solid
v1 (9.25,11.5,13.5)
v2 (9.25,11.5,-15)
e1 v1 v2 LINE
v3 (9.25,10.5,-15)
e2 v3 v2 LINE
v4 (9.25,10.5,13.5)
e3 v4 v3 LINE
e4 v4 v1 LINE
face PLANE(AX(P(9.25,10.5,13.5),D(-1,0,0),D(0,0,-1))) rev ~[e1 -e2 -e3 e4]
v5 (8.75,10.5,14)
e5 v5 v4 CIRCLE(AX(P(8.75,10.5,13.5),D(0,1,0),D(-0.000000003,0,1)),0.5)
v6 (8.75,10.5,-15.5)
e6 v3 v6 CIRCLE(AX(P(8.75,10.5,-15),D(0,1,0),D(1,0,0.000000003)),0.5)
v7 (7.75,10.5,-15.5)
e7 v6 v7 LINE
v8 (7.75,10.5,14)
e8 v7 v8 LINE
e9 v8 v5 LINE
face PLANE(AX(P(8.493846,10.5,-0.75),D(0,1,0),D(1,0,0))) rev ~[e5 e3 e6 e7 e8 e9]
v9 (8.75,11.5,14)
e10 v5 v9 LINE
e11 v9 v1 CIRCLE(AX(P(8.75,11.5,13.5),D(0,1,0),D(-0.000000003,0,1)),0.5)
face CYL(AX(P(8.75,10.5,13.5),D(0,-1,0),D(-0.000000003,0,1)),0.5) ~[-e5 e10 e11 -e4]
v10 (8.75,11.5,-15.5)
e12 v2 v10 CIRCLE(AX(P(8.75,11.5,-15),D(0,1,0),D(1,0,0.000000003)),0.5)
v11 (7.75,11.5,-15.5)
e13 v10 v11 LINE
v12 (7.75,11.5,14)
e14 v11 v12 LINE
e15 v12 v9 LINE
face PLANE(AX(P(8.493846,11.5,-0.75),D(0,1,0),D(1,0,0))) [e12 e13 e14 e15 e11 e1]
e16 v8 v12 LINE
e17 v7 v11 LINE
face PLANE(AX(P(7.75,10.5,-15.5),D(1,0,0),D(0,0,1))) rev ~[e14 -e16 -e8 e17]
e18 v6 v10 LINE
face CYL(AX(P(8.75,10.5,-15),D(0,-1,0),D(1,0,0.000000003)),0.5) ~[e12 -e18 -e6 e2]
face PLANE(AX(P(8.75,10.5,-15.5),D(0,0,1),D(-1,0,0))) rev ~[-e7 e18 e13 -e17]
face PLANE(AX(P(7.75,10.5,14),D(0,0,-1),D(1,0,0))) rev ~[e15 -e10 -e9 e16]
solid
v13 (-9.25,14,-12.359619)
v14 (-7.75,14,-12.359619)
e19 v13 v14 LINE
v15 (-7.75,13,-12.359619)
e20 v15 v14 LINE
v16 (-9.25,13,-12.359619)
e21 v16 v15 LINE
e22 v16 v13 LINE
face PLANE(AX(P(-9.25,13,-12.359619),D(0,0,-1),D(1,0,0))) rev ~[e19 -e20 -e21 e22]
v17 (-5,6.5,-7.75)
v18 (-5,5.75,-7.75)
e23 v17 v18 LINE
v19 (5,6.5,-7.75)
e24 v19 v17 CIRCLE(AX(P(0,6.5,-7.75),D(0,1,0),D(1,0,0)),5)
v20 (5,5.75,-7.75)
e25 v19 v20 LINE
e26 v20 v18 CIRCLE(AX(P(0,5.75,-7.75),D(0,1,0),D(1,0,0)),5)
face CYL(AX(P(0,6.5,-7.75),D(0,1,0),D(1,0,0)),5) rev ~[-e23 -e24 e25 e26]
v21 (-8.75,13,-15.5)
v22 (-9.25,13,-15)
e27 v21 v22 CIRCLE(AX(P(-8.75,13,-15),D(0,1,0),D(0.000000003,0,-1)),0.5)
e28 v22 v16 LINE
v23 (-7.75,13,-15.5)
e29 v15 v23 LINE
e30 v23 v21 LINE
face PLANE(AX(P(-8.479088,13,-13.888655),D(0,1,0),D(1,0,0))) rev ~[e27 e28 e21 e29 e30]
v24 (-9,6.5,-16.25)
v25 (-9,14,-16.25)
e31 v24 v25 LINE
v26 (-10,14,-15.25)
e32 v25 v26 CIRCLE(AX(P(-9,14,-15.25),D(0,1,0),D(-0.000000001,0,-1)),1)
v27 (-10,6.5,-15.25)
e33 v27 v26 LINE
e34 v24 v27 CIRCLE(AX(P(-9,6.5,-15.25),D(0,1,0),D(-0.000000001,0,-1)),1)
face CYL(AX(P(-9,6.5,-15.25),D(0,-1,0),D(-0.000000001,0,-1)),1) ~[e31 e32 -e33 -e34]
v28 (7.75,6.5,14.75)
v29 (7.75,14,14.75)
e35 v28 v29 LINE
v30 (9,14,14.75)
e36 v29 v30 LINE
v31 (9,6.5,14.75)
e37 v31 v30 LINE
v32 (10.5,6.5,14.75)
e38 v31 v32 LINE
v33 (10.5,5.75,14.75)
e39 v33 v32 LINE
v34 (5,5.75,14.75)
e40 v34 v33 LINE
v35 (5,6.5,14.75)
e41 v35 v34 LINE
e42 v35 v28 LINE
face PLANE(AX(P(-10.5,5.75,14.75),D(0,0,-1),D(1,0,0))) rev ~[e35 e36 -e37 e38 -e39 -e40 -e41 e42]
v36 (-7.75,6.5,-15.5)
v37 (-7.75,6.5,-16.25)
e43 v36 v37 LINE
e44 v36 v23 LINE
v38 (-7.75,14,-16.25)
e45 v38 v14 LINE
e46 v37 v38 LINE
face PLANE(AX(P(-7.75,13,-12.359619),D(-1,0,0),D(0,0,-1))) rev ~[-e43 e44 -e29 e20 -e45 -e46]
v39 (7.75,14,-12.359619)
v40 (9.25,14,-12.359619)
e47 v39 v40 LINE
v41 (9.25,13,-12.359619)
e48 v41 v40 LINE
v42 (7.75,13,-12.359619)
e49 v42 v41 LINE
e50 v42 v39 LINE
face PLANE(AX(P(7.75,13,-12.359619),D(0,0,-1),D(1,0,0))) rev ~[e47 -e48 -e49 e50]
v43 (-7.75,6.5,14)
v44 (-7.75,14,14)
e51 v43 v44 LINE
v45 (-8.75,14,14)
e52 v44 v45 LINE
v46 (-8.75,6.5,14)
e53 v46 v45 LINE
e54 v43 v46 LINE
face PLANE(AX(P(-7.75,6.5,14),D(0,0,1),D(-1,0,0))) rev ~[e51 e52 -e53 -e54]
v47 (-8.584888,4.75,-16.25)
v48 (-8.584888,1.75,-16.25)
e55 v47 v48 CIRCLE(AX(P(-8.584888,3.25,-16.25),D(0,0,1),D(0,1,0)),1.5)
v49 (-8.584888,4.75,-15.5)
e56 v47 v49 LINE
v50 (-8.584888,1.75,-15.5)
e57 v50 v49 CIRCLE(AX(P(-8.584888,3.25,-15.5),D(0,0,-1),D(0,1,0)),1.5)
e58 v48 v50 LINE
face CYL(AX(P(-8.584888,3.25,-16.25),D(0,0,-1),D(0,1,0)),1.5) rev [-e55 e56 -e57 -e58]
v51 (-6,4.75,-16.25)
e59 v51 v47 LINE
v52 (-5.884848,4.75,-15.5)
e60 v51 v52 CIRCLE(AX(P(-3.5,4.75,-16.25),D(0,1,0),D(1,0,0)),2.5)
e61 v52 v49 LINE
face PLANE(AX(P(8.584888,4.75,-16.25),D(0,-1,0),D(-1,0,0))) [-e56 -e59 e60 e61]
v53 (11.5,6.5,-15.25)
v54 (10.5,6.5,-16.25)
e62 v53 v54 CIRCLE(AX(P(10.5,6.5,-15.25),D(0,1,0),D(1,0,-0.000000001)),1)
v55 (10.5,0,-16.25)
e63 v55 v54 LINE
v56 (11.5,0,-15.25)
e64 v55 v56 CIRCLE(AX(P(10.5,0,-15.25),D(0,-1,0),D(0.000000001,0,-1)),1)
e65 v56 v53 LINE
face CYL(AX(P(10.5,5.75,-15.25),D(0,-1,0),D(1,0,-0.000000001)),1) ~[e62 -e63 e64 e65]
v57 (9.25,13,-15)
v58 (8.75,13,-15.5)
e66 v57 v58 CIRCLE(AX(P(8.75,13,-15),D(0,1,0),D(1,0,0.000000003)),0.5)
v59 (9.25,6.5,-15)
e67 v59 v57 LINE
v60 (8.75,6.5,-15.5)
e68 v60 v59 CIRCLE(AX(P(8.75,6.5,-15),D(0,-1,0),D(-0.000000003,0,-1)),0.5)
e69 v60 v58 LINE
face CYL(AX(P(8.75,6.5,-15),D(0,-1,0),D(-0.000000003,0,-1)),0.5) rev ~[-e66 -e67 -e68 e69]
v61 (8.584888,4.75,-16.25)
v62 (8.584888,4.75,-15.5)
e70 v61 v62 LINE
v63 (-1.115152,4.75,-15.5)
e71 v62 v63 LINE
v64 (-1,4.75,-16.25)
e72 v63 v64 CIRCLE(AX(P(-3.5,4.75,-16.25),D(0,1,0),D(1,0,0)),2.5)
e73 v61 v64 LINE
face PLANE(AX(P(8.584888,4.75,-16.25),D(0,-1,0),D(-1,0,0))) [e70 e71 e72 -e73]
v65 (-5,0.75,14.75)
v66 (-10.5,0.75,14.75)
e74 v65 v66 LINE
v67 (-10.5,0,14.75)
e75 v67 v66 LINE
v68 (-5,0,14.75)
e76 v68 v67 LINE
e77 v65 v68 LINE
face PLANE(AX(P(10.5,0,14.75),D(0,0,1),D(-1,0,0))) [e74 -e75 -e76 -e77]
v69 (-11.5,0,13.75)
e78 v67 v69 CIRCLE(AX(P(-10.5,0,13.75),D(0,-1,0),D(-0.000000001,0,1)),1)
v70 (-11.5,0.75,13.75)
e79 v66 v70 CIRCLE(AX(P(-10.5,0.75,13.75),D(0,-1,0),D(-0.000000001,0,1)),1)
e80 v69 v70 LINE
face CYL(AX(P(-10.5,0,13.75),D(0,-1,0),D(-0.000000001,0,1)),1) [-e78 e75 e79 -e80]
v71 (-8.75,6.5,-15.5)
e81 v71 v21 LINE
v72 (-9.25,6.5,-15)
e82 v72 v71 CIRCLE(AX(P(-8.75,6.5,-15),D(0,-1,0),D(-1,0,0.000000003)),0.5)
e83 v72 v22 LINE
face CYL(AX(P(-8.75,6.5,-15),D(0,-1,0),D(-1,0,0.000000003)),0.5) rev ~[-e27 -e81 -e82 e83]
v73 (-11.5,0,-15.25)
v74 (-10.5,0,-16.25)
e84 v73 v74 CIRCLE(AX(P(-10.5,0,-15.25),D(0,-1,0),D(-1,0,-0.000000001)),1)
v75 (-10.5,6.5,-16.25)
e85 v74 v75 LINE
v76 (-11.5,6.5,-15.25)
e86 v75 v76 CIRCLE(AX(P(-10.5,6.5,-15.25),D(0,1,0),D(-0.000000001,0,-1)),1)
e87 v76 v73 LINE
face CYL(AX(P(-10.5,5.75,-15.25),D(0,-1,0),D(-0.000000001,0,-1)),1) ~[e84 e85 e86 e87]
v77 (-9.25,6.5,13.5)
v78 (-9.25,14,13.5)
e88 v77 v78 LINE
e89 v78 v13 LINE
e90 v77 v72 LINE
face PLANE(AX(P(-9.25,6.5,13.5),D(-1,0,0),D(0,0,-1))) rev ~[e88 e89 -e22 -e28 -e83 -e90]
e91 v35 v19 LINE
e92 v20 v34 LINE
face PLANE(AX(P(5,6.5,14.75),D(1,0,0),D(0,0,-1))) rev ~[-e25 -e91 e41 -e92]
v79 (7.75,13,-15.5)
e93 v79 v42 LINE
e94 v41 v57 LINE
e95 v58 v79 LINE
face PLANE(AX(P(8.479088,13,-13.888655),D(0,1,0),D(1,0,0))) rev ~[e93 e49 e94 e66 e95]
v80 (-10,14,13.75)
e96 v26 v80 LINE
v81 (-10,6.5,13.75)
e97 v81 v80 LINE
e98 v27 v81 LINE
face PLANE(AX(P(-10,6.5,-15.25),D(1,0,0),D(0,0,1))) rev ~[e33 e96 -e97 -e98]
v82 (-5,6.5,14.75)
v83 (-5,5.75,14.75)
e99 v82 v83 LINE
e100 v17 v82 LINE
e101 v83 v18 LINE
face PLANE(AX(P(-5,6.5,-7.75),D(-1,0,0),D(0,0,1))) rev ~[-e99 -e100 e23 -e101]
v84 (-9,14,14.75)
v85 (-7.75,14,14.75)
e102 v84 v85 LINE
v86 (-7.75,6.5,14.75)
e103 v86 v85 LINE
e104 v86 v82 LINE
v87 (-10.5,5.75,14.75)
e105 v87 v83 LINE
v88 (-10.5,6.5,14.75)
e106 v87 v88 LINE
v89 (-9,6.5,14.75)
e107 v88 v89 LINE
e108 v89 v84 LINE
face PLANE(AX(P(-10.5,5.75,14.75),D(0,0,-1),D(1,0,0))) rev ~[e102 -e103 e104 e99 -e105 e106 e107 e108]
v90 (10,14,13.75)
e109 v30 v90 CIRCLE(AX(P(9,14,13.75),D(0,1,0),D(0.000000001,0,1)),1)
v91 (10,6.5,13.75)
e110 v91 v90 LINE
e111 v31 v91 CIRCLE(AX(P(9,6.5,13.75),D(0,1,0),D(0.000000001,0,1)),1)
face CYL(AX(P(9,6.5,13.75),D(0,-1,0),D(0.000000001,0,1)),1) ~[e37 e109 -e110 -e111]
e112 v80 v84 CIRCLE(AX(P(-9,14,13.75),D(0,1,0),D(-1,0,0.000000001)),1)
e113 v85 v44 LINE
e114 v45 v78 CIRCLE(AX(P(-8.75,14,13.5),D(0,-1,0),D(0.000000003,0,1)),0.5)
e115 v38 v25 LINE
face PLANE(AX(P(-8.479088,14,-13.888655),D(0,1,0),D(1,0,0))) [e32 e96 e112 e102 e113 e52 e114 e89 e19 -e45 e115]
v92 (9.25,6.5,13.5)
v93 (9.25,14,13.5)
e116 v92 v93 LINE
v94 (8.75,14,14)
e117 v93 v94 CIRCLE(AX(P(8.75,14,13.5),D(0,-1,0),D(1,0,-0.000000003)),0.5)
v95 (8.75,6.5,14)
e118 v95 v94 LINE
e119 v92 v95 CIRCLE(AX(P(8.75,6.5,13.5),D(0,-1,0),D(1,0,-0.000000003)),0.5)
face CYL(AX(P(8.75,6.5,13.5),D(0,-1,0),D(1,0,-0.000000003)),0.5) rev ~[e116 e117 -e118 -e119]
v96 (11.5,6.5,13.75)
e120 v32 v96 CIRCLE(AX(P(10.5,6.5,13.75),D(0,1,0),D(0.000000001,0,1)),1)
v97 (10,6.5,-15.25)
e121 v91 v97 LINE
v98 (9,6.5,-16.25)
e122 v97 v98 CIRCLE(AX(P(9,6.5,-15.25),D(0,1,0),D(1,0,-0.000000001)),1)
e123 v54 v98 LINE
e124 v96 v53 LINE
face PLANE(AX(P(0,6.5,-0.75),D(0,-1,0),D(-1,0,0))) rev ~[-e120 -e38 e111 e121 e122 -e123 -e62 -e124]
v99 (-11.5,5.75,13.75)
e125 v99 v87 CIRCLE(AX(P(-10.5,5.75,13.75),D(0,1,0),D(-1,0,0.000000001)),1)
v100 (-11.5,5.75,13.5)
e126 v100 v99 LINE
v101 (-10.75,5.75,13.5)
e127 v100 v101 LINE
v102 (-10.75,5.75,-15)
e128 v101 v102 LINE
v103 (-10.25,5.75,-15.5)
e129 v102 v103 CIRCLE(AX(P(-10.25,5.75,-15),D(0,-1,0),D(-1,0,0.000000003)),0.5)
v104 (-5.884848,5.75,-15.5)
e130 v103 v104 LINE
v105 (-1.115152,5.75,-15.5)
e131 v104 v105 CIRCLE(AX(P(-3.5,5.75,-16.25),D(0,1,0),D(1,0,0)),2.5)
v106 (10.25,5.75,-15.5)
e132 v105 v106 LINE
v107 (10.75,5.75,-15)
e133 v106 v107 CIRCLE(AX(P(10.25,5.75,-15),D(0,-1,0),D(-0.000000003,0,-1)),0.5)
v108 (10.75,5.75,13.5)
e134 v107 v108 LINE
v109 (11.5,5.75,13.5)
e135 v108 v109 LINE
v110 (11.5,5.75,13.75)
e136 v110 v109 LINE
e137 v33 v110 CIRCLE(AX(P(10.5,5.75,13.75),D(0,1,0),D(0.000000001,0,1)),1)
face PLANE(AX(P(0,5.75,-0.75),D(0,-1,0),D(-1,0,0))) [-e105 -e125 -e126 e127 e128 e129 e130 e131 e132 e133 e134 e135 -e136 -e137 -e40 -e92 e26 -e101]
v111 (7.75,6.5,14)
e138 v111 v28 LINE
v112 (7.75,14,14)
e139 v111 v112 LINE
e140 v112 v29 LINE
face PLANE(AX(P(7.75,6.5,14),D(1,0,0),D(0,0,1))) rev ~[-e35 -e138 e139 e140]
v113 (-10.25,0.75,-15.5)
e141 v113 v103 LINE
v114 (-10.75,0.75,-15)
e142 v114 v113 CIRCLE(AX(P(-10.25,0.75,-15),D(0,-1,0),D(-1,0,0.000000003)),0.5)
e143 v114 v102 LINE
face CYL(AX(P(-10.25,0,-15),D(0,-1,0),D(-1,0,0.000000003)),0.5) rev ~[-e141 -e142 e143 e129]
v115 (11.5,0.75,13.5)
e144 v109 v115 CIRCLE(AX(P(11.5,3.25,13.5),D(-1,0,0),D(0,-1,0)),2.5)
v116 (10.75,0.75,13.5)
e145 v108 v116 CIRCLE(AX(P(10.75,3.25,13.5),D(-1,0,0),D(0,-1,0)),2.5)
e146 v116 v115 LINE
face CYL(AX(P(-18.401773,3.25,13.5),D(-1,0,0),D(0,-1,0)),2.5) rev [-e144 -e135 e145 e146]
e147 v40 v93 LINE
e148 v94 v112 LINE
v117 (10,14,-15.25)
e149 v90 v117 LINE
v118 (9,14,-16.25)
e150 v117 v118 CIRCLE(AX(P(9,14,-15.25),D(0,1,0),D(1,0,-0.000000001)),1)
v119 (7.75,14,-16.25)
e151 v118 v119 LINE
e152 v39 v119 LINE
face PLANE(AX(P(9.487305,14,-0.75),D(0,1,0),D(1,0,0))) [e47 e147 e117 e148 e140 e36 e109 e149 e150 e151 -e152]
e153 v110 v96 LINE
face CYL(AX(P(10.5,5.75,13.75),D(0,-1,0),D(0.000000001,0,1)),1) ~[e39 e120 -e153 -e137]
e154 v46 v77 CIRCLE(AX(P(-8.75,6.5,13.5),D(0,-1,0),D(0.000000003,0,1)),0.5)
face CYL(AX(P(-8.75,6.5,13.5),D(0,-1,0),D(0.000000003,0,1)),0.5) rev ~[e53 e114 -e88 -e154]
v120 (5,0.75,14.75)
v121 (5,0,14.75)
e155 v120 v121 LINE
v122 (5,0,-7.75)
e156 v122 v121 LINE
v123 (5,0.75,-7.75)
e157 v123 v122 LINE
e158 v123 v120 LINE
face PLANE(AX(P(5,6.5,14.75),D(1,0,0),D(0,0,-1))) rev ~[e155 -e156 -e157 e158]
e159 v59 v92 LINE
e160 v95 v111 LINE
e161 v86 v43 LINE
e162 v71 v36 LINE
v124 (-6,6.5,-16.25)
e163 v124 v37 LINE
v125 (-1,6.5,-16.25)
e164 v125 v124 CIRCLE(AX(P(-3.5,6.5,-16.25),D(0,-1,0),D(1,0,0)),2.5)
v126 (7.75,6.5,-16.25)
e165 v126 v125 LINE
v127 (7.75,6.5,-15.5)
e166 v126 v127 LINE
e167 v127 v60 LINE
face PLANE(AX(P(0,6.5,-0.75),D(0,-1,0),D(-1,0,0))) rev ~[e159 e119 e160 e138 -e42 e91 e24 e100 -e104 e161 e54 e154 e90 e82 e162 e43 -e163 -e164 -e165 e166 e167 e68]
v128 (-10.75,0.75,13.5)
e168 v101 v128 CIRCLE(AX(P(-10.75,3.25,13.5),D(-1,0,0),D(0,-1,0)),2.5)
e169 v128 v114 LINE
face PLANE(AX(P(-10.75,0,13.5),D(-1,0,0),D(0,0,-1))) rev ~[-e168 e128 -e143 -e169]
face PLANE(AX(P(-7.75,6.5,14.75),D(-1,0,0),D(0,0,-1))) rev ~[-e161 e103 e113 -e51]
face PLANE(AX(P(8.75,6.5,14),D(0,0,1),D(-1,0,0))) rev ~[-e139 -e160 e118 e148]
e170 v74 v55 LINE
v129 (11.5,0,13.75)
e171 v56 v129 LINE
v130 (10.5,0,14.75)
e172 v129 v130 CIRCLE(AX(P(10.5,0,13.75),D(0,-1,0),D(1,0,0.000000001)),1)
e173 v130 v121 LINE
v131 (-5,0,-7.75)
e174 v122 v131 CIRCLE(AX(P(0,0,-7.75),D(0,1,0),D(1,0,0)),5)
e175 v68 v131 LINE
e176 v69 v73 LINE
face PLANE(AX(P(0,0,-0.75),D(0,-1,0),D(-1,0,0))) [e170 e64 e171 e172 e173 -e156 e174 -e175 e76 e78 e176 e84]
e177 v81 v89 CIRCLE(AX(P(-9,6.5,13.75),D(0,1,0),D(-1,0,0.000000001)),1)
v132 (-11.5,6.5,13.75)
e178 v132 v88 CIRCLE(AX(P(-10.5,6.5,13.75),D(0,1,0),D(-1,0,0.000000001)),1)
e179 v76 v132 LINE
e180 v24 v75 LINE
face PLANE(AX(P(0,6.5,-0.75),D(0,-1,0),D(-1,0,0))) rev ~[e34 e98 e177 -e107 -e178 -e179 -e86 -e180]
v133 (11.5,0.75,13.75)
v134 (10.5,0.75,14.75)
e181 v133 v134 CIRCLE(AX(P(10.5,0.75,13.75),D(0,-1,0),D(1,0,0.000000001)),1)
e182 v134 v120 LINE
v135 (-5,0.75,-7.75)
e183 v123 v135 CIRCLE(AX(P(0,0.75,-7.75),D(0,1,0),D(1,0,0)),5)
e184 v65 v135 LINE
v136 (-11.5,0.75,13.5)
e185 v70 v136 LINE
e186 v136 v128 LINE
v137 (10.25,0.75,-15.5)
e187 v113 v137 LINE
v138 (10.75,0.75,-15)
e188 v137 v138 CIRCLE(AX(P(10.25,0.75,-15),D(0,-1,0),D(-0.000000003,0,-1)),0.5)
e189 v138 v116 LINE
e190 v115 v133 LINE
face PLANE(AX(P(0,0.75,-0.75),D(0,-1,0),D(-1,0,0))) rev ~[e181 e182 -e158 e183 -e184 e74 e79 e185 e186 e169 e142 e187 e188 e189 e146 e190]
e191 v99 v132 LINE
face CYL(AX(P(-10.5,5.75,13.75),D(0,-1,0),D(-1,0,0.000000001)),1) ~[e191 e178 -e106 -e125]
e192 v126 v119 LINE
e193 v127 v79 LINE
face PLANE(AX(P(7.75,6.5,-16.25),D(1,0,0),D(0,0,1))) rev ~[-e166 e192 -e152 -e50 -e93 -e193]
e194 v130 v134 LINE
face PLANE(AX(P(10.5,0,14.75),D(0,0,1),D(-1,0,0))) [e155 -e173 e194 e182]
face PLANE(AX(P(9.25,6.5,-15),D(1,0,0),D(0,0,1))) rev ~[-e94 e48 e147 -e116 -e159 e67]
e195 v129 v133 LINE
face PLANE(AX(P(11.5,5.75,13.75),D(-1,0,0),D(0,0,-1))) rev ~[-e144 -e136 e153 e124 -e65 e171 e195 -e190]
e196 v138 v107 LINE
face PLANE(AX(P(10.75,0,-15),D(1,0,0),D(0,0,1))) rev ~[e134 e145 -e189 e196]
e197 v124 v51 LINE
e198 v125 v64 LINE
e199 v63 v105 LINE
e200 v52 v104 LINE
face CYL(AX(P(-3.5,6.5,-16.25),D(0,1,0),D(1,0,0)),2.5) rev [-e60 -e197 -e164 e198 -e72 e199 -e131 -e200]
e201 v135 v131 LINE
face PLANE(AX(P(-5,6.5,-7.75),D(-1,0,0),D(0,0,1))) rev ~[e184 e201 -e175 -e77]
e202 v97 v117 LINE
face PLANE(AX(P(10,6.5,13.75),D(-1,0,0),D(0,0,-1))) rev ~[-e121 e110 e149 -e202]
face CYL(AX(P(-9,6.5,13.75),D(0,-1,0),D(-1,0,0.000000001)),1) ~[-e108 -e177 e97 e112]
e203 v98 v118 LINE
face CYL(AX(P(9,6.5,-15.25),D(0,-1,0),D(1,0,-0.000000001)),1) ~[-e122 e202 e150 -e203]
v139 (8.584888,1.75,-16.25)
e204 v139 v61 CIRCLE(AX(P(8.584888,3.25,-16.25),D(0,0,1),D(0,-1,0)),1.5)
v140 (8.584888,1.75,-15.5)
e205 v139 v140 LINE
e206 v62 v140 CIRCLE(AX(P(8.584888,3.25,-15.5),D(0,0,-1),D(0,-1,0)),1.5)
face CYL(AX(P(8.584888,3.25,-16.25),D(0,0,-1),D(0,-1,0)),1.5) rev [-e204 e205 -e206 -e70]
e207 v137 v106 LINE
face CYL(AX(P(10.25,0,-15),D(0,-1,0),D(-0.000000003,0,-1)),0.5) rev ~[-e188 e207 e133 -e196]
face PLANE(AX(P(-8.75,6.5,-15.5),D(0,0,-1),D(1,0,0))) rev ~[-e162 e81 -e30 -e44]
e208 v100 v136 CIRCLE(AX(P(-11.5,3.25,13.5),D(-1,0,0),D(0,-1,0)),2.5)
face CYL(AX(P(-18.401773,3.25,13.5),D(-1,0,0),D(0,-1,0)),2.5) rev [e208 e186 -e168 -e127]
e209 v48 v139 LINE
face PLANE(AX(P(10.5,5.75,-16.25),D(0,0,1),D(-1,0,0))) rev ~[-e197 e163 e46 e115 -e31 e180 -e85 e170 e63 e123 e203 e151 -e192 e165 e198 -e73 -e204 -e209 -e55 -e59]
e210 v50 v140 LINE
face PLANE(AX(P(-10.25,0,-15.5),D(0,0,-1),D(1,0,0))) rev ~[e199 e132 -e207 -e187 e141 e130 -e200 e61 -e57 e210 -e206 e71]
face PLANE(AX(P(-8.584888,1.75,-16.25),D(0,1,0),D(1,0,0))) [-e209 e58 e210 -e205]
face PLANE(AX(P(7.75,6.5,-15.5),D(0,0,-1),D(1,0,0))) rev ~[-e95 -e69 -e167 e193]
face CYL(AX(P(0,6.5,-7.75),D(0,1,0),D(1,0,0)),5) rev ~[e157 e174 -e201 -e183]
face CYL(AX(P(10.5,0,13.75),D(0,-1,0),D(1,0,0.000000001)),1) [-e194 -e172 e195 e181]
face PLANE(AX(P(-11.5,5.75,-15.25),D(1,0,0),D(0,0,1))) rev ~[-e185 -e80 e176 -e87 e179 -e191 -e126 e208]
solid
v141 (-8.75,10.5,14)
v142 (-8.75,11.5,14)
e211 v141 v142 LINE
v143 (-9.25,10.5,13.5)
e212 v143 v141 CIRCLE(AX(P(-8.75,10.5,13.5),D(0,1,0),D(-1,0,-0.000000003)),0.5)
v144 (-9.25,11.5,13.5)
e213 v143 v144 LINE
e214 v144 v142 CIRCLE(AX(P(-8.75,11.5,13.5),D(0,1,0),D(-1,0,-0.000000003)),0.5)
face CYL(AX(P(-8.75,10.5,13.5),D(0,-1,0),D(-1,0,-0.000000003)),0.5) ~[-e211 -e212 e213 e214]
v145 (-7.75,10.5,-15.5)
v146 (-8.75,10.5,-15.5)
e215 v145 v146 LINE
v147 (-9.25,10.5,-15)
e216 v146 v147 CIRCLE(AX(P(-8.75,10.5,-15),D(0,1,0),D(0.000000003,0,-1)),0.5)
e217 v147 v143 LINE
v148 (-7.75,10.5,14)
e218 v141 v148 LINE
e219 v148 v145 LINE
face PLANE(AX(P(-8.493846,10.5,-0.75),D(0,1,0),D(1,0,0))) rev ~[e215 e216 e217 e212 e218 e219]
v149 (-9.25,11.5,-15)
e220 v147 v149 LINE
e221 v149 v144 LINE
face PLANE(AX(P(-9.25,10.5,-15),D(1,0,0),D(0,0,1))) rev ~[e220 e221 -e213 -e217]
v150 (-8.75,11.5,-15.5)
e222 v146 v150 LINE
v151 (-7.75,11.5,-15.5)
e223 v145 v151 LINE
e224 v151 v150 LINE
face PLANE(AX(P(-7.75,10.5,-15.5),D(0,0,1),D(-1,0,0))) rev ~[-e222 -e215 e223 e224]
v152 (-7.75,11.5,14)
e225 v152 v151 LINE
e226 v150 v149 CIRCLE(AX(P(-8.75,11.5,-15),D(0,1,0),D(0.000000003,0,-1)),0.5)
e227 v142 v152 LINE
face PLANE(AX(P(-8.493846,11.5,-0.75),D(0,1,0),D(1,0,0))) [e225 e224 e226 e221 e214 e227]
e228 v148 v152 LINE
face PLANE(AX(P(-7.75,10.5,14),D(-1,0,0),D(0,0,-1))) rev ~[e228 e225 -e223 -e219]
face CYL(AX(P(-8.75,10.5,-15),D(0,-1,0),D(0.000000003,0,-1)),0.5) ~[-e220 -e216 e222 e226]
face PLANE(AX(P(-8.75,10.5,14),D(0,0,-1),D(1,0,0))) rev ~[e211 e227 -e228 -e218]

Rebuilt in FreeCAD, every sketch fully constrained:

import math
import FreeCAD as App
import Part
import Sketcher

V = App.Vector

doc = App.newDocument("Part")
body = doc.addObject("PartDesign::Body", "Body")

# Sketch on XZ plane
sketch1 = body.newObject("Sketcher::SketchObject", "Sketch")
sketch1.AttachmentSupport = (doc.getObject("XZ_Plane"), [""])
sketch1.MapMode = "FlatFace"
sketch1.addGeometry([
    Part.LineSegment(V(10.5, -16.2, 0), V(-10.5, -16.2, 0)),  # 0
    Part.ArcOfCircle(Part.Circle(V(-10.5, -15.2, 0), V(0, 0, 1), 1), math.radians(-180), math.radians(-90)),  # 1
    Part.LineSegment(V(-11.5, -15.2, 0), V(-11.5, 13.8, 0)),  # 2
    Part.ArcOfCircle(Part.Circle(V(-10.5, 13.7, 0), V(0, 0, 1), 1), math.radians(90), math.radians(180)),  # 3
    Part.LineSegment(V(-10.5, 14.8, 0), V(10.5, 14.8, 0)),  # 4
    Part.ArcOfCircle(Part.Circle(V(10.5, 13.7, 0), V(0, 0, 1), 1), math.radians(0), math.radians(90)),  # 5
    Part.LineSegment(V(11.5, 13.8, 0), V(11.5, -15.2, 0)),  # 6
    Part.ArcOfCircle(Part.Circle(V(10.5, -15.2, 0), V(0, 0, 1), 1), math.radians(-90), math.radians(0)),  # 7
], False)
sketch1.addConstraint([
    Sketcher.Constraint("Tangent", 0, 2, 1, 2),
    Sketcher.Constraint("Tangent", 1, 1, 2, 1),
    Sketcher.Constraint("Tangent", 2, 2, 3, 2),
    Sketcher.Constraint("Tangent", 3, 1, 4, 1),
    Sketcher.Constraint("Tangent", 4, 2, 5, 2),
    Sketcher.Constraint("Tangent", 5, 1, 6, 1),
    Sketcher.Constraint("Tangent", 6, 2, 7, 2),
    Sketcher.Constraint("Tangent", 7, 1, 0, 1),
    Sketcher.Constraint("Horizontal", 0),
    Sketcher.Constraint("Vertical", 2),
    Sketcher.Constraint("Horizontal", 4),
    Sketcher.Constraint("Vertical", 6),
    Sketcher.Constraint("Equal", 1, 3),
    Sketcher.Constraint("Equal", 3, 5),
    Sketcher.Constraint("Equal", 5, 7),
    Sketcher.Constraint("Radius", 1, 1.0),
    Sketcher.Constraint("DistanceX", 0, 2, 0, 1, 21.0),
    Sketcher.Constraint("DistanceY", 2, 1, 2, 2, 29.0),
    Sketcher.Constraint("DistanceX", 1, 3, -1, 1, 10.5),
    Sketcher.Constraint("DistanceY", 1, 3, -1, 1, 15.25),
])
pad1 = body.newObject("PartDesign::Pad", "Pad")
pad1.Profile = sketch1
pad1.Length = 0.75
pad1.Reversed = True

# Sketch on XZ plane
sketch2 = body.newObject("Sketcher::SketchObject", "Sketch001")
sketch2.AttachmentSupport = (doc.getObject("XZ_Plane"), [""])
sketch2.MapMode = "FlatFace"
sketch2.addGeometry([
    Part.LineSegment(V(-11.5, 13.5, 0), V(-10.75, 13.5, 0)),  # 0
    Part.LineSegment(V(-10.75, 13.5, 0), V(-10.75, -15, 0)),  # 1
    Part.ArcOfCircle(Part.Circle(V(-10.25, -15, 0), V(0, 0, 1), 0.5), math.radians(180), math.radians(270)),  # 2
    Part.LineSegment(V(-10.25, -15.5, 0), V(10.25, -15.5, 0)),  # 3
    Part.ArcOfCircle(Part.Circle(V(10.25, -15, 0), V(0, 0, 1), 0.5), math.radians(-90), math.radians(0)),  # 4
    Part.LineSegment(V(10.75, -15, 0), V(10.75, 13.5, 0)),  # 5
    Part.LineSegment(V(10.75, 13.5, 0), V(11.5, 13.5, 0)),  # 6
    Part.LineSegment(V(11.5, 13.5, 0), V(11.5, -15.25, 0)),  # 7
    Part.ArcOfCircle(Part.Circle(V(10.5, -15.25, 0), V(0, 0, 1), 1), math.radians(-90), math.radians(0)),  # 8
    Part.LineSegment(V(10.5, -16.25, 0), V(-10.5, -16.25, 0)),  # 9
    Part.ArcOfCircle(Part.Circle(V(-10.5, -15.25, 0), V(0, 0, 1), 1), math.radians(-180), math.radians(-90)),  # 10
    Part.LineSegment(V(-11.5, -15.25, 0), V(-11.5, 13.5, 0)),  # 11
], False)
sketch2.addConstraint([
    Sketcher.Constraint("Coincident", 0, 2, 1, 1),
    Sketcher.Constraint("Tangent", 1, 2, 2, 1),
    Sketcher.Constraint("Tangent", 2, 2, 3, 1),
    Sketcher.Constraint("Tangent", 3, 2, 4, 1),
    Sketcher.Constraint("Tangent", 4, 2, 5, 1),
    Sketcher.Constraint("Coincident", 5, 2, 6, 1),
    Sketcher.Constraint("Coincident", 6, 2, 7, 1),
    Sketcher.Constraint("Tangent", 7, 2, 8, 2),
    Sketcher.Constraint("Tangent", 8, 1, 9, 1),
    Sketcher.Constraint("Tangent", 9, 2, 10, 2),
    Sketcher.Constraint("Tangent", 10, 1, 11, 1),
    Sketcher.Constraint("Coincident", 11, 2, 0, 1),
    Sketcher.Constraint("Horizontal", 0),
    Sketcher.Constraint("Vertical", 1),
    Sketcher.Constraint("Horizontal", 3),
    Sketcher.Constraint("Vertical", 5),
    Sketcher.Constraint("Horizontal", 6),
    Sketcher.Constraint("Vertical", 7),
    Sketcher.Constraint("Horizontal", 9),
    Sketcher.Constraint("Vertical", 11),
    Sketcher.Constraint("Equal", 2, 4),
    Sketcher.Constraint("Equal", 8, 10),
    Sketcher.Constraint("Symmetric", 0, 2, 5, 2, -2),
    Sketcher.Constraint("Equal", 0, 6),
    Sketcher.Constraint("Radius", 8, 1.0),
    Sketcher.Constraint("Radius", 2, 0.5),
    Sketcher.Constraint("DistanceX", 9, 2, 9, 1, 21.0),
    Sketcher.Constraint("DistanceX", 3, 1, 3, 2, 20.5),
    Sketcher.Constraint("DistanceY", 1, 2, 1, 1, 28.5),
    Sketcher.Constraint("DistanceY", 2, 3, -1, 1, 15.0),
    Sketcher.Constraint("DistanceY", 7, 2, 7, 1, 28.75),
])
pad2 = body.newObject("PartDesign::Pad", "Pad001")
pad2.Profile = sketch2
pad2.Length = 5.75
pad2.Reversed = True

# Sketch on XZ plane
sketch3 = body.newObject("Sketcher::SketchObject", "Sketch002")
sketch3.AttachmentSupport = (doc.getObject("XZ_Plane"), [""])
sketch3.MapMode = "FlatFace"
sketch3.AttachmentOffset = App.Placement(V(0, 0, -5.75), App.Rotation())
sketch3.addGeometry([
    Part.LineSegment(V(11.5, 13.8, 0), V(11.5, -15.2, 0)),  # 0
    Part.ArcOfCircle(Part.Circle(V(10.5, -15.2, 0), V(0, 0, 1), 1), math.radians(-90), math.radians(0)),  # 1
    Part.LineSegment(V(10.5, -16.2, 0), V(-10.5, -16.2, 0)),  # 2
    Part.ArcOfCircle(Part.Circle(V(-10.5, -15.2, 0), V(0, 0, 1), 1), math.radians(-180), math.radians(-90)),  # 3
    Part.LineSegment(V(-11.5, -15.2, 0), V(-11.5, 13.8, 0)),  # 4
    Part.ArcOfCircle(Part.Circle(V(-10.5, 13.7, 0), V(0, 0, 1), 1), math.radians(90), math.radians(180)),  # 5
    Part.LineSegment(V(-10.5, 14.8, 0), V(10.5, 14.8, 0)),  # 6
    Part.ArcOfCircle(Part.Circle(V(10.5, 13.7, 0), V(0, 0, 1), 1), math.radians(0), math.radians(90)),  # 7
], False)
sketch3.addConstraint([
    Sketcher.Constraint("Tangent", 0, 2, 1, 2),
    Sketcher.Constraint("Tangent", 1, 1, 2, 1),
    Sketcher.Constraint("Tangent", 2, 2, 3, 2),
    Sketcher.Constraint("Tangent", 3, 1, 4, 1),
    Sketcher.Constraint("Tangent", 4, 2, 5, 2),
    Sketcher.Constraint("Tangent", 5, 1, 6, 1),
    Sketcher.Constraint("Tangent", 6, 2, 7, 2),
    Sketcher.Constraint("Tangent", 7, 1, 0, 1),
    Sketcher.Constraint("Vertical", 0),
    Sketcher.Constraint("Horizontal", 2),
    Sketcher.Constraint("Vertical", 4),
    Sketcher.Constraint("Horizontal", 6),
    Sketcher.Constraint("Equal", 1, 3),
    Sketcher.Constraint("Equal", 3, 5),
    Sketcher.Constraint("Equal", 5, 7),
    Sketcher.Constraint("Radius", 1, 1.0),
    Sketcher.Constraint("DistanceX", 2, 2, 2, 1, 21.0),
    Sketcher.Constraint("DistanceY", 0, 2, 0, 1, 29.0),
    Sketcher.Constraint("DistanceX", -1, 1, 1, 3, 10.5),
    Sketcher.Constraint("DistanceY", 1, 3, -1, 1, 15.25),
])
pad3 = body.newObject("PartDesign::Pad", "Pad002")
pad3.Profile = sketch3
pad3.Length = 0.75
pad3.Reversed = True

# Sketch on YZ plane
sketch4 = body.newObject("Sketcher::SketchObject", "Sketch003")
sketch4.AttachmentSupport = (doc.getObject("YZ_Plane"), [""])
sketch4.MapMode = "FlatFace"
sketch4.AttachmentOffset = App.Placement(V(0, 0, 11.5), App.Rotation())
sketch4.addGeometry([
    Part.ArcOfCircle(Part.Circle(V(3.2, 13.5, 0), V(0, 0, 1), 2.5), math.radians(180), math.radians(360)),
    Part.LineSegment(V(5.8, 13.5, 0), V(5.8, 225.3, 0)),
    Part.LineSegment(V(5.8, 225.3, 0), V(0.8, 225.3, 0)),
    Part.LineSegment(V(0.8, 225.3, 0), V(0.8, 13.5, 0)),
], False)
sketch4.addConstraint([
    Sketcher.Constraint("Tangent", 0, 2, 1, 1),
    Sketcher.Constraint("Coincident", 1, 2, 2, 1),
    Sketcher.Constraint("Coincident", 2, 2, 3, 1),
    Sketcher.Constraint("Tangent", 3, 2, 0, 1),
    Sketcher.Constraint("Vertical", 1),
    Sketcher.Constraint("Horizontal", 2),
    Sketcher.Constraint("Vertical", 3),
    Sketcher.Constraint("Radius", 0, 2.5),
    Sketcher.Constraint("DistanceY", -1, 1, 0, 3, 13.5),
    Sketcher.Constraint("DistanceX", -1, 1, 0, 3, 3.25),
    Sketcher.Constraint("DistanceY", 1, 1, 1, 2, 211.803465),
])
pocket1 = body.newObject("PartDesign::Pocket", "Pocket")
pocket1.Profile = sketch4
pocket1.Type = "ThroughAll"
pocket1.Midplane = True

# Sketch on XZ plane
sketch5 = body.newObject("Sketcher::SketchObject", "Sketch004")
sketch5.AttachmentSupport = (doc.getObject("XZ_Plane"), [""])
sketch5.MapMode = "FlatFace"
sketch5.AttachmentOffset = App.Placement(V(0, 0, -6.5), App.Rotation())
sketch5.addGeometry([
    Part.LineSegment(V(-7.75, 14.75, 0), V(-7.75, 14, 0)),  # 0
    Part.LineSegment(V(-7.75, 14, 0), V(-8.75, 14, 0)),  # 1
    Part.ArcOfCircle(Part.Circle(V(-8.75, 13.5, 0), V(0, 0, 1), 0.5), math.radians(90), math.radians(180)),  # 2
    Part.LineSegment(V(-9.25, 13.5, 0), V(-9.25, -15, 0)),  # 3
    Part.ArcOfCircle(Part.Circle(V(-8.75, -15, 0), V(0, 0, 1), 0.5), math.radians(180), math.radians(270)),  # 4
    Part.LineSegment(V(-8.75, -15.5, 0), V(-7.75, -15.5, 0)),  # 5
    Part.LineSegment(V(-7.75, -15.5, 0), V(-7.75, -16.25, 0)),  # 6
    Part.LineSegment(V(-7.75, -16.25, 0), V(-9, -16.25, 0)),  # 7
    Part.ArcOfCircle(Part.Circle(V(-9, -15.25, 0), V(0, 0, 1), 1), math.radians(-180), math.radians(-90)),  # 8
    Part.LineSegment(V(-10, -15.25, 0), V(-10, 13.75, 0)),  # 9
    Part.ArcOfCircle(Part.Circle(V(-9, 13.75, 0), V(0, 0, 1), 1), math.radians(90), math.radians(180)),  # 10
    Part.LineSegment(V(-9, 14.75, 0), V(-7.75, 14.75, 0)),  # 11
    Part.LineSegment(V(8.75, 14, 0), V(7.75, 14, 0)),  # 12
    Part.LineSegment(V(7.75, 14, 0), V(7.75, 14.75, 0)),  # 13
    Part.LineSegment(V(7.75, 14.75, 0), V(9, 14.75, 0)),  # 14
    Part.ArcOfCircle(Part.Circle(V(9, 13.75, 0), V(0, 0, 1), 1), math.radians(0), math.radians(90)),  # 15
    Part.LineSegment(V(10, 13.75, 0), V(10, -15.25, 0)),  # 16
    Part.ArcOfCircle(Part.Circle(V(9, -15.25, 0), V(0, 0, 1), 1), math.radians(-90), math.radians(0)),  # 17
    Part.LineSegment(V(9, -16.25, 0), V(7.75, -16.25, 0)),  # 18
    Part.LineSegment(V(7.75, -16.25, 0), V(7.75, -15.5, 0)),  # 19
    Part.LineSegment(V(7.75, -15.5, 0), V(8.75, -15.5, 0)),  # 20
    Part.ArcOfCircle(Part.Circle(V(8.75, -15, 0), V(0, 0, 1), 0.5), math.radians(-90), math.radians(0)),  # 21
    Part.LineSegment(V(9.25, -15, 0), V(9.25, 13.5, 0)),  # 22
    Part.ArcOfCircle(Part.Circle(V(8.75, 13.5, 0), V(0, 0, 1), 0.5), math.radians(0), math.radians(90)),  # 23
], False)
sketch5.addConstraint([
    Sketcher.Constraint("Coincident", 0, 2, 1, 1),
    Sketcher.Constraint("Tangent", 1, 2, 2, 1),
    Sketcher.Constraint("Tangent", 2, 2, 3, 1),
    Sketcher.Constraint("Tangent", 3, 2, 4, 1),
    Sketcher.Constraint("Tangent", 4, 2, 5, 1),
    Sketcher.Constraint("Coincident", 5, 2, 6, 1),
    Sketcher.Constraint("Coincident", 6, 2, 7, 1),
    Sketcher.Constraint("Tangent", 7, 2, 8, 2),
    Sketcher.Constraint("Tangent", 8, 1, 9, 1),
    Sketcher.Constraint("Tangent", 9, 2, 10, 2),
    Sketcher.Constraint("Tangent", 10, 1, 11, 1),
    Sketcher.Constraint("Coincident", 11, 2, 0, 1),
    Sketcher.Constraint("Coincident", 12, 2, 13, 1),
    Sketcher.Constraint("Coincident", 13, 2, 14, 1),
    Sketcher.Constraint("Tangent", 14, 2, 15, 2),
    Sketcher.Constraint("Tangent", 15, 1, 16, 1),
    Sketcher.Constraint("Tangent", 16, 2, 17, 2),
    Sketcher.Constraint("Tangent", 17, 1, 18, 1),
    Sketcher.Constraint("Coincident", 18, 2, 19, 1),
    Sketcher.Constraint("Coincident", 19, 2, 20, 1),
    Sketcher.Constraint("Tangent", 20, 2, 21, 1),
    Sketcher.Constraint("Tangent", 21, 2, 22, 1),
    Sketcher.Constraint("Tangent", 22, 2, 23, 1),
    Sketcher.Constraint("Tangent", 23, 2, 12, 1),
    Sketcher.Constraint("Vertical", 0),
    Sketcher.Constraint("Horizontal", 1),
    Sketcher.Constraint("Vertical", 3),
    Sketcher.Constraint("Horizontal", 5),
    Sketcher.Constraint("Vertical", 6),
    Sketcher.Constraint("Horizontal", 7),
    Sketcher.Constraint("Vertical", 9),
    Sketcher.Constraint("Horizontal", 11),
    Sketcher.Constraint("Horizontal", 12),
    Sketcher.Constraint("Vertical", 13),
    Sketcher.Constraint("Horizontal", 14),
    Sketcher.Constraint("Vertical", 16),
    Sketcher.Constraint("Horizontal", 18),
    Sketcher.Constraint("Vertical", 19),
    Sketcher.Constraint("Horizontal", 20),
    Sketcher.Constraint("Vertical", 22),
    Sketcher.Constraint("Equal", 2, 4),
    Sketcher.Constraint("Equal", 8, 10),
    Sketcher.Constraint("Equal", 10, 15),
    Sketcher.Constraint("Equal", 15, 17),
    Sketcher.Constraint("Equal", 4, 21),
    Sketcher.Constraint("Equal", 21, 23),
    Sketcher.Constraint("Symmetric", 10, 3, 15, 3, -2),
    Sketcher.Constraint("Symmetric", 4, 3, 21, 3, -2),
    Sketcher.Constraint("Symmetric", 0, 2, 12, 2, -2),
    Sketcher.Constraint("Symmetric", 6, 2, 18, 2, -2),
    Sketcher.Constraint("Vertical", 0, 2, 5, 2),
    Sketcher.Constraint("Equal", 0, 6),
    Sketcher.Constraint("Radius", 8, 1.0),
    Sketcher.Constraint("Radius", 2, 0.5),
    Sketcher.Constraint("DistanceX", 1, 2, 1, 1, 1.0),
    Sketcher.Constraint("DistanceY", 9, 1, 9, 2, 29.0),
    Sketcher.Constraint("DistanceY", 3, 2, 3, 1, 28.5),
    Sketcher.Constraint("DistanceY", 4, 3, -1, 1, 15.0),
    Sketcher.Constraint("DistanceX", 8, 3, -1, 1, 9.0),
    Sketcher.Constraint("DistanceX", 2, 2, 23, 3, 18.0),
])
pad4 = body.newObject("PartDesign::Pad", "Pad003")
pad4.Profile = sketch5
pad4.Length = 7.5
pad4.Reversed = True

# Sketch on XZ plane
sketch6 = body.newObject("Sketcher::SketchObject", "Sketch005")
sketch6.AttachmentSupport = (doc.getObject("XZ_Plane"), [""])
sketch6.MapMode = "FlatFace"
sketch6.AttachmentOffset = App.Placement(V(0, 0, -6.5), App.Rotation())
sketch6.addGeometry([
    Part.LineSegment(V(-5, -8, 0), V(-5, 15, 0)),
    Part.LineSegment(V(-5, 15, 0), V(5, 15, 0)),
    Part.LineSegment(V(5, 15, 0), V(5, -8, 0)),
    Part.ArcOfCircle(Part.Circle(V(0, -8, 0), V(0, 0, 1), 5), math.radians(180), math.radians(360)),
], False)
sketch6.addConstraint([
    Sketcher.Constraint("Coincident", 0, 2, 1, 1),
    Sketcher.Constraint("Coincident", 1, 2, 2, 1),
    Sketcher.Constraint("Tangent", 2, 2, 3, 2),
    Sketcher.Constraint("Tangent", 3, 1, 0, 1),
    Sketcher.Constraint("Vertical", 0),
    Sketcher.Constraint("Horizontal", 1),
    Sketcher.Constraint("Vertical", 2),
    Sketcher.Constraint("PointOnObject", 3, 3, -2),
    Sketcher.Constraint("Radius", 3, 5.0),
    Sketcher.Constraint("DistanceY", 0, 1, 0, 2, 22.5),
    Sketcher.Constraint("DistanceY", 3, 3, -1, 1, 7.75),
])
pocket2 = body.newObject("PartDesign::Pocket", "Pocket001")
pocket2.Profile = sketch6
pocket2.Type = "ThroughAll"
pocket2.Reversed = True

# Sketch on XY plane
sketch7 = body.newObject("Sketcher::SketchObject", "Sketch006")
sketch7.AttachmentSupport = (doc.getObject("XY_Plane"), [""])
sketch7.MapMode = "FlatFace"
sketch7.AttachmentOffset = App.Placement(V(0, 0, -16.25), App.Rotation())
sketch7.addGeometry([
    Part.LineSegment(V(8.6, 1.8, 0), V(-8.6, 1.8, 0)),
    Part.ArcOfCircle(Part.Circle(V(-8.6, 3.2, 0), V(0, 0, 1), 1.5), math.radians(90), math.radians(270)),
    Part.LineSegment(V(-8.6, 4.8, 0), V(8.6, 4.8, 0)),
    Part.ArcOfCircle(Part.Circle(V(8.6, 3.2, 0), V(0, 0, 1), 1.5), math.radians(-90), math.radians(90)),
], False)
sketch7.addConstraint([
    Sketcher.Constraint("Tangent", 0, 2, 1, 2),
    Sketcher.Constraint("Tangent", 1, 1, 2, 1),
    Sketcher.Constraint("Tangent", 2, 2, 3, 2),
    Sketcher.Constraint("Tangent", 3, 1, 0, 1),
    Sketcher.Constraint("Horizontal", 0),
    Sketcher.Constraint("Horizontal", 2),
    Sketcher.Constraint("Radius", 1, 1.5),
    Sketcher.Constraint("DistanceY", -1, 1, 1, 3, 3.25),
    Sketcher.Constraint("DistanceX", 0, 2, 0, 1, 17.169776),
    Sketcher.Constraint("DistanceX", 1, 3, -1, 1, 8.584888),
])
pocket3 = body.newObject("PartDesign::Pocket", "Pocket002")
pocket3.Profile = sketch7
pocket3.Length = 3.5
pocket3.Reversed = True

# Sketch on XZ plane
sketch8 = body.newObject("Sketcher::SketchObject", "Sketch007")
sketch8.AttachmentSupport = (doc.getObject("XZ_Plane"), [""])
sketch8.MapMode = "FlatFace"
sketch8.AttachmentOffset = App.Placement(V(0, 0, -6.5), App.Rotation())
sketch8.addGeometry([
    Part.LineSegment(V(-1, -16.2, 0), V(-6, -16.2, 0)),
    Part.ArcOfCircle(Part.Circle(V(-3.5, -16.2, 0), V(0, 0, 1), 2.5), math.radians(0), math.radians(180)),
], False)
sketch8.addConstraint([
    Sketcher.Constraint("Coincident", 0, 1, 1, 1),
    Sketcher.Constraint("Coincident", 1, 2, 0, 2),
    Sketcher.Constraint("Horizontal", 0),
    Sketcher.Constraint("Horizontal", 1, 3, 0, 1),
    Sketcher.Constraint("Radius", 1, 2.5),
    Sketcher.Constraint("DistanceX", 0, 1, -1, 1, 1.0),
    Sketcher.Constraint("DistanceY", 1, 3, -1, 1, 16.25),
])
pocket4 = body.newObject("PartDesign::Pocket", "Pocket003")
pocket4.Profile = sketch8
pocket4.Length = 2
pocket4.Reversed = True

# Sketch on XZ plane
sketch9 = body.newObject("Sketcher::SketchObject", "Sketch008")
sketch9.AttachmentSupport = (doc.getObject("XZ_Plane"), [""])
sketch9.MapMode = "FlatFace"
sketch9.AttachmentOffset = App.Placement(V(0, 0, -13), App.Rotation())
sketch9.addGeometry([
    Part.LineSegment(V(-9.25, -12.36, 0), V(-7.75, -12.36, 0)),  # 0
    Part.LineSegment(V(-7.75, -12.36, 0), V(-7.75, -15.5, 0)),  # 1
    Part.LineSegment(V(-7.75, -15.5, 0), V(-8.75, -15.5, 0)),  # 2
    Part.ArcOfCircle(Part.Circle(V(-8.75, -15, 0), V(0, 0, 1), 0.5), math.radians(180), math.radians(270)),  # 3
    Part.LineSegment(V(-9.25, -15, 0), V(-9.25, -12.36, 0)),  # 4
    Part.LineSegment(V(7.75, -15.5, 0), V(7.75, -12.36, 0)),  # 5
    Part.LineSegment(V(7.75, -12.36, 0), V(9.25, -12.36, 0)),  # 6
    Part.LineSegment(V(9.25, -12.36, 0), V(9.25, -15, 0)),  # 7
    Part.ArcOfCircle(Part.Circle(V(8.75, -15, 0), V(0, 0, 1), 0.5), math.radians(-90), math.radians(0)),  # 8
    Part.LineSegment(V(8.75, -15.5, 0), V(7.75, -15.5, 0)),  # 9
], False)
sketch9.addConstraint([
    Sketcher.Constraint("Coincident", 0, 2, 1, 1),
    Sketcher.Constraint("Coincident", 1, 2, 2, 1),
    Sketcher.Constraint("Tangent", 2, 2, 3, 2),
    Sketcher.Constraint("Tangent", 3, 1, 4, 1),
    Sketcher.Constraint("Coincident", 4, 2, 0, 1),
    Sketcher.Constraint("Coincident", 5, 2, 6, 1),
    Sketcher.Constraint("Coincident", 6, 2, 7, 1),
    Sketcher.Constraint("Tangent", 7, 2, 8, 2),
    Sketcher.Constraint("Tangent", 8, 1, 9, 1),
    Sketcher.Constraint("Coincident", 9, 2, 5, 1),
    Sketcher.Constraint("Horizontal", 0),
    Sketcher.Constraint("Vertical", 1),
    Sketcher.Constraint("Horizontal", 2),
    Sketcher.Constraint("Vertical", 4),
    Sketcher.Constraint("Vertical", 5),
    Sketcher.Constraint("Horizontal", 6),
    Sketcher.Constraint("Vertical", 7),
    Sketcher.Constraint("Horizontal", 9),
    Sketcher.Constraint("Equal", 3, 8),
    Sketcher.Constraint("Symmetric", 3, 3, 8, 3, -2),
    Sketcher.Constraint("Symmetric", 0, 2, 5, 2, -2),
    Sketcher.Constraint("Radius", 3, 0.5),
    Sketcher.Constraint("DistanceX", 2, 2, 2, 1, 1.0),
    Sketcher.Constraint("DistanceY", 3, 3, -1, 1, 15.0),
    Sketcher.Constraint("DistanceX", 3, 1, 8, 3, 18.0),
    Sketcher.Constraint("DistanceY", 1, 2, 1, 1, 3.140381),
])
pad5 = body.newObject("PartDesign::Pad", "Pad004")
pad5.Profile = sketch9
pad5.Length = 1
pad5.Reversed = True
body2 = doc.addObject("PartDesign::Body", "Body001")

# Sketch on XZ plane
sketch10 = body2.newObject("Sketcher::SketchObject", "Sketch009")
sketch10.AttachmentSupport = (doc.getObject("XZ_Plane001"), [""])
sketch10.MapMode = "FlatFace"
sketch10.AttachmentOffset = App.Placement(V(0, 0, -10.5), App.Rotation())
sketch10.addGeometry([
    Part.LineSegment(V(-8.75, 14, 0), V(-7.75, 14, 0)),  # 0
    Part.LineSegment(V(-7.75, 14, 0), V(-7.75, -15.5, 0)),  # 1
    Part.LineSegment(V(-7.75, -15.5, 0), V(-8.75, -15.5, 0)),  # 2
    Part.ArcOfCircle(Part.Circle(V(-8.75, -15, 0), V(0, 0, 1), 0.5), math.radians(180), math.radians(270)),  # 3
    Part.LineSegment(V(-9.25, -15, 0), V(-9.25, 13.5, 0)),  # 4
    Part.ArcOfCircle(Part.Circle(V(-8.75, 13.5, 0), V(0, 0, 1), 0.5), math.radians(90), math.radians(180)),  # 5
], False)
sketch10.addConstraint([
    Sketcher.Constraint("Coincident", 0, 2, 1, 1),
    Sketcher.Constraint("Coincident", 1, 2, 2, 1),
    Sketcher.Constraint("Tangent", 2, 2, 3, 2),
    Sketcher.Constraint("Tangent", 3, 1, 4, 1),
    Sketcher.Constraint("Tangent", 4, 2, 5, 2),
    Sketcher.Constraint("Tangent", 5, 1, 0, 1),
    Sketcher.Constraint("Horizontal", 0),
    Sketcher.Constraint("Vertical", 1),
    Sketcher.Constraint("Horizontal", 2),
    Sketcher.Constraint("Vertical", 4),
    Sketcher.Constraint("Equal", 3, 5),
    Sketcher.Constraint("Radius", 3, 0.5),
    Sketcher.Constraint("DistanceX", 0, 1, 0, 2, 1.0),
    Sketcher.Constraint("DistanceY", 1, 2, 1, 1, 29.5),
    Sketcher.Constraint("DistanceY", 3, 3, -1, 1, 15.0),
    Sketcher.Constraint("DistanceX", 3, 3, -1, 1, 8.75),
])
pad6 = body2.newObject("PartDesign::Pad", "Pad005")
pad6.Profile = sketch10
pad6.Length = 1
pad6.Reversed = True
body3 = doc.addObject("PartDesign::Body", "Body002")

# Sketch on XZ plane
sketch11 = body3.newObject("Sketcher::SketchObject", "Sketch010")
sketch11.AttachmentSupport = (doc.getObject("XZ_Plane002"), [""])
sketch11.MapMode = "FlatFace"
sketch11.AttachmentOffset = App.Placement(V(0, 0, -10.5), App.Rotation())
sketch11.addGeometry([
    Part.LineSegment(V(7.75, 14, 0), V(8.75, 14, 0)),  # 0
    Part.ArcOfCircle(Part.Circle(V(8.75, 13.5, 0), V(0, 0, 1), 0.5), math.radians(0), math.radians(90)),  # 1
    Part.LineSegment(V(9.25, 13.5, 0), V(9.25, -15, 0)),  # 2
    Part.ArcOfCircle(Part.Circle(V(8.75, -15, 0), V(0, 0, 1), 0.5), math.radians(-90), math.radians(0)),  # 3
    Part.LineSegment(V(8.75, -15.5, 0), V(7.75, -15.5, 0)),  # 4
    Part.LineSegment(V(7.75, -15.5, 0), V(7.75, 14, 0)),  # 5
], False)
sketch11.addConstraint([
    Sketcher.Constraint("Tangent", 0, 2, 1, 2),
    Sketcher.Constraint("Tangent", 1, 1, 2, 1),
    Sketcher.Constraint("Tangent", 2, 2, 3, 2),
    Sketcher.Constraint("Tangent", 3, 1, 4, 1),
    Sketcher.Constraint("Coincident", 4, 2, 5, 1),
    Sketcher.Constraint("Coincident", 5, 2, 0, 1),
    Sketcher.Constraint("Horizontal", 0),
    Sketcher.Constraint("Vertical", 2),
    Sketcher.Constraint("Horizontal", 4),
    Sketcher.Constraint("Vertical", 5),
    Sketcher.Constraint("Equal", 1, 3),
    Sketcher.Constraint("Radius", 1, 0.5),
    Sketcher.Constraint("DistanceX", 0, 1, 0, 2, 1.0),
    Sketcher.Constraint("DistanceY", 2, 2, 2, 1, 28.5),
    Sketcher.Constraint("DistanceY", 3, 3, -1, 1, 15.0),
    Sketcher.Constraint("DistanceX", -1, 1, 1, 3, 8.75),
])
pad7 = body3.newObject("PartDesign::Pad", "Pad006")
pad7.Profile = sketch11
pad7.Length = 1
pad7.Reversed = True

doc.recompute()
